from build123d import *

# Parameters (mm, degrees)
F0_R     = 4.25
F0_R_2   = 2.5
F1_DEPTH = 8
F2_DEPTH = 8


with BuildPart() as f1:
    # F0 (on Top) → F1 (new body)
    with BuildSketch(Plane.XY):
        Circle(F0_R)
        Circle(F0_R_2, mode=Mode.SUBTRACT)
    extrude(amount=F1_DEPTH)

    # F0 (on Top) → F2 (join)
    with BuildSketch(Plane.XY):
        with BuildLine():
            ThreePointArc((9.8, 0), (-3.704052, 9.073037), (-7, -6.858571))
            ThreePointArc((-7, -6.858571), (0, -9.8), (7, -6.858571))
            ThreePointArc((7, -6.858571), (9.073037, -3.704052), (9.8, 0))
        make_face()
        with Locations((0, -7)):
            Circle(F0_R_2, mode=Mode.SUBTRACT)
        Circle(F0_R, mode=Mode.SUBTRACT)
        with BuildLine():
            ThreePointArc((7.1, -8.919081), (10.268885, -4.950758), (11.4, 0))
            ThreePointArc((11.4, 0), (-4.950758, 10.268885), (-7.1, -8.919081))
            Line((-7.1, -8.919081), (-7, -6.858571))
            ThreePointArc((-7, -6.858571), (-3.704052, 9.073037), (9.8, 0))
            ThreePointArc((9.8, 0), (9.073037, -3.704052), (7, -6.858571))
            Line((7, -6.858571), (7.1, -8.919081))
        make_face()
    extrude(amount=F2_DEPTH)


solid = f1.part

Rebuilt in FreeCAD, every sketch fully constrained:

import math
import FreeCAD as App
import Part
import Sketcher
from FreeCAD import Vector

doc = App.newDocument("Part")
body = doc.addObject("PartDesign::Body", "Body")

# Sketch on XY plane
sketch1 = body.newObject("Sketcher::SketchObject", "Sketch")
sketch1.AttachmentSupport = (doc.getObject("XY_Plane"), [""])
sketch1.MapMode = "FlatFace"
sketch1.addGeometry(Part.Circle(Vector(0, 0, 0), Vector(0, 0, 1), 4.25), False)
sketch1.addGeometry(Part.Circle(Vector(0, 0, 0), Vector(0, 0, 1), 2.5), False)
sketch1.addConstraint(Sketcher.Constraint("Coincident", 0, 3, -1, 1))
sketch1.addConstraint(Sketcher.Constraint("Coincident", 1, 3, -1, 1))
sketch1.addConstraint(Sketcher.Constraint("Diameter", 1, 5.0))
sketch1.addConstraint(Sketcher.Constraint("Diameter", 0, 8.5))
pad1 = body.newObject("PartDesign::Pad", "Pad")
pad1.Profile = sketch1
pad1.Length = 8

# Sketch on XY plane
sketch2 = body.newObject("Sketcher::SketchObject", "Sketch001")
sketch2.AttachmentSupport = (doc.getObject("XY_Plane"), [""])
sketch2.MapMode = "FlatFace"
sketch2.addGeometry(Part.ArcOfCircle(Part.Circle(Vector(0, -0.000001, 0), Vector(0, 0, 1), 9.799999), math.radians(-135.584695), math.radians(-44.415305)), False)
sketch2.addGeometry(Part.LineSegment(Vector(7, -6.858571, 0), Vector(7.1, -8.919081, 0)), False)
sketch2.addGeometry(Part.ArcOfCircle(Part.Circle(Vector(0, 0, 0), Vector(0, 0, 1), 11.4), math.radians(-51.478592), math.radians(0.000002)), False)
sketch2.addGeometry(Part.ArcOfCircle(Part.Circle(Vector(0, 0, 0), Vector(0, 0, 1), 11.4), math.radians(0), math.radians(231.478593)), False)
sketch2.addGeometry(Part.LineSegment(Vector(-7.1, -8.919081, 0), Vector(-7, -6.858571, 0)), False)
sketch2.addGeometry(Part.Circle(Vector(0, -7, 0), Vector(0, 0, 1), 2.5), False)
sketch2.addGeometry(Part.Circle(Vector(0, 0, 0), Vector(0, 0, 1), 4.25), False)
sketch2.addConstraint(Sketcher.Constraint("Coincident", 0, 2, 1, 1))
sketch2.addConstraint(Sketcher.Constraint("Coincident", 1, 2, 2, 1))
sketch2.addConstraint(Sketcher.Constraint("Tangent", 2, 2, 3, 1))
sketch2.addConstraint(Sketcher.Constraint("Coincident", 3, 2, 4, 1))
sketch2.addConstraint(Sketcher.Constraint("Coincident", 4, 2, 0, 1))
sketch2.addConstraint(Sketcher.Constraint("Coincident", 0, 3, -1, 1))
sketch2.addConstraint(Sketcher.Constraint("Coincident", 2, 3, -1, 1))
sketch2.addConstraint(Sketcher.Constraint("Coincident", 6, 3, -1, 1))
sketch2.addConstraint(Sketcher.Constraint("Equal", 2, 3))
sketch2.addConstraint(Sketcher.Constraint("PointOnObject", 5, 3, -2))
sketch2.addConstraint(Sketcher.Constraint("PointOnObject", 2, 2, -1))
sketch2.addConstraint(Sketcher.Constraint("Horizontal", 1, 2, 3, 2))
sketch2.addConstraint(Sketcher.Constraint("Horizontal", 0, 2, 4, 2))
sketch2.addConstraint(Sketcher.Constraint("Diameter", 5, 5.0))
sketch2.addConstraint(Sketcher.Constraint("Diameter", 6, 8.5))
sketch2.addConstraint(Sketcher.Constraint("Radius", 0, 9.799999))
sketch2.addConstraint(Sketcher.Constraint("Radius", 2, 11.4))
sketch2.addConstraint(Sketcher.Constraint("DistanceY", 5, 3, -1, 1, 7.0))
sketch2.addConstraint(Sketcher.Constraint("DistanceX", -1, 1, 0, 2, 7.0))
sketch2.addConstraint(Sketcher.Constraint("DistanceX", -1, 1, 1, 2, 7.1))
pad2 = body.newObject("PartDesign::Pad", "Pad001")
pad2.Profile = sketch2
pad2.Length = 8

doc.recompute()
